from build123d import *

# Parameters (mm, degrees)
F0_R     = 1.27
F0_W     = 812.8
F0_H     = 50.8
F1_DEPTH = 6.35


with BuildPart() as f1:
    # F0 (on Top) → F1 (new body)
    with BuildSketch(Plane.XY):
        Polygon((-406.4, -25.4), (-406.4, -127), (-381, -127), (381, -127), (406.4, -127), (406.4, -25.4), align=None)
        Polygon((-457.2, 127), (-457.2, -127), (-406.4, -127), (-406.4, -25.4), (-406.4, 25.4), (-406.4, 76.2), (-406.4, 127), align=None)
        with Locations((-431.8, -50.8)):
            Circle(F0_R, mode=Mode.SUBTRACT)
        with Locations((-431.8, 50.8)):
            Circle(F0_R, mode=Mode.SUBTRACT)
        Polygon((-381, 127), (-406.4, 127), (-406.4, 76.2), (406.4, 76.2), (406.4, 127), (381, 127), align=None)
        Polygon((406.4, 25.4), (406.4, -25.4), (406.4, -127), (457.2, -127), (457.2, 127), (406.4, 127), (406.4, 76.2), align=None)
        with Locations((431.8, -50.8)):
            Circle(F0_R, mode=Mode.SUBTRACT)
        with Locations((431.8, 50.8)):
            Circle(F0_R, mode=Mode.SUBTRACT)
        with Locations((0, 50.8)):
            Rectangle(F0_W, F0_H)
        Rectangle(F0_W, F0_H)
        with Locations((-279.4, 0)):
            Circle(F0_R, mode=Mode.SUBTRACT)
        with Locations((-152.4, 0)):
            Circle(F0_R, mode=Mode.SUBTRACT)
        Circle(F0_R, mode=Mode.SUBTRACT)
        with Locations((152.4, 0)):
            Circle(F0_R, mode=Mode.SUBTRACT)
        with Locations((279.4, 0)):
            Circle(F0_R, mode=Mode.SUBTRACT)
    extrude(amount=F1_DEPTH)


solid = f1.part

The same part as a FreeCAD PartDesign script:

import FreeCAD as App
import Part
import Sketcher
Q = App.Units.Quantity

doc = App.newDocument("Part")
body = doc.addObject("PartDesign::Body", "Body")

# Sketch on XY plane
sketch1 = body.newObject("Sketcher::SketchObject", "Sketch")
sketch1.AttachmentSupport = (doc.getObject("XY_Plane"), [""])
sketch1.MapMode = "FlatFace"
sketch1.addGeometry([
    Part.LineSegment(App.Vector(-457.2, 127, 0), App.Vector(-457.2, -127, 0)),  # 0
    Part.LineSegment(App.Vector(-457.2, -127, 0), App.Vector(457.2, -127, 0)),  # 1
    Part.LineSegment(App.Vector(457.2, -127, 0), App.Vector(457.2, 127, 0)),  # 2
    Part.LineSegment(App.Vector(457.2, 127, 0), App.Vector(-457.2, 127, 0)),  # 3
    Part.Circle(App.Vector(-431.8, -50.8, 0), App.Vector(0, 0, 1), 1.27),  # 4
    Part.Circle(App.Vector(-279.4, 0, 0), App.Vector(0, 0, 1), 1.27),  # 5
    Part.Circle(App.Vector(-152.4, 0, 0), App.Vector(0, 0, 1), 1.27),  # 6
    Part.Circle(App.Vector(0, 0, 0), App.Vector(0, 0, 1), 1.27),  # 7
    Part.Circle(App.Vector(431.8, -50.8, 0), App.Vector(0, 0, 1), 1.27),  # 8
    Part.Circle(App.Vector(152.4, 0, 0), App.Vector(0, 0, 1), 1.27),  # 9
    Part.Circle(App.Vector(279.4, 0, 0), App.Vector(0, 0, 1), 1.27),  # 10
    Part.Circle(App.Vector(-431.8, 50.8, 0), App.Vector(0, 0, 1), 1.27),  # 11
    Part.Circle(App.Vector(431.8, 50.8, 0), App.Vector(0, 0, 1), 1.27),  # 12
], False)
sketch1.addConstraint([
    Sketcher.Constraint("Coincident", 0, 2, 1, 1),
    Sketcher.Constraint("Coincident", 1, 2, 2, 1),
    Sketcher.Constraint("Coincident", 2, 2, 3, 1),
    Sketcher.Constraint("Coincident", 3, 2, 0, 1),
    Sketcher.Constraint("Vertical", 0),
    Sketcher.Constraint("Horizontal", 1),
    Sketcher.Constraint("Vertical", 2),
    Sketcher.Constraint("Horizontal", 3),
    Sketcher.Constraint("Coincident", 7, 3, -1, 1),
    Sketcher.Constraint("Equal", 4, 5),
    Sketcher.Constraint("Equal", 5, 6),
    Sketcher.Constraint("Equal", 6, 7),
    Sketcher.Constraint("Equal", 7, 8),
    Sketcher.Constraint("Equal", 8, 9),
    Sketcher.Constraint("Equal", 9, 10),
    Sketcher.Constraint("Equal", 10, 11),
    Sketcher.Constraint("Equal", 11, 12),
    Sketcher.Constraint("Symmetric", 6, 3, 9, 3, -1, 1),
    Sketcher.Constraint("Symmetric", 5, 3, 10, 3, -1, 1),
    Sketcher.Constraint("Symmetric", 8, 3, 11, 3, -1, 1),
    Sketcher.Constraint("Symmetric", 4, 3, 12, 3, -1, 1),
    Sketcher.Constraint("Symmetric", 0, 2, 2, 2, -1, 1),
    Sketcher.Constraint("Symmetric", 4, 3, 8, 3, -2),
    Sketcher.Constraint("PointOnObject", 5, 3, -1),
    Sketcher.Constraint("PointOnObject", 6, 3, -1),
    Sketcher.Constraint("Diameter", 4, Q("0.1 in")),
    Sketcher.Constraint("DistanceX", 1, 1, 1, 2, Q("36 in")),
    Sketcher.Constraint("DistanceY", 0, 2, 0, 1, Q("10 in")),
    Sketcher.Constraint("DistanceX", 4, 3, -1, 1, Q("17 in")),
    Sketcher.Constraint("DistanceY", 4, 3, -1, 1, Q("2 in")),
    Sketcher.Constraint("DistanceX", 5, 3, -1, 1, Q("11 in")),
    Sketcher.Constraint("DistanceX", 6, 3, -1, 1, Q("6 in")),
])
pad1 = body.newObject("PartDesign::Pad", "Pad")
pad1.Profile = sketch1
pad1.Length = Q("0.25 in")

doc.recompute()
